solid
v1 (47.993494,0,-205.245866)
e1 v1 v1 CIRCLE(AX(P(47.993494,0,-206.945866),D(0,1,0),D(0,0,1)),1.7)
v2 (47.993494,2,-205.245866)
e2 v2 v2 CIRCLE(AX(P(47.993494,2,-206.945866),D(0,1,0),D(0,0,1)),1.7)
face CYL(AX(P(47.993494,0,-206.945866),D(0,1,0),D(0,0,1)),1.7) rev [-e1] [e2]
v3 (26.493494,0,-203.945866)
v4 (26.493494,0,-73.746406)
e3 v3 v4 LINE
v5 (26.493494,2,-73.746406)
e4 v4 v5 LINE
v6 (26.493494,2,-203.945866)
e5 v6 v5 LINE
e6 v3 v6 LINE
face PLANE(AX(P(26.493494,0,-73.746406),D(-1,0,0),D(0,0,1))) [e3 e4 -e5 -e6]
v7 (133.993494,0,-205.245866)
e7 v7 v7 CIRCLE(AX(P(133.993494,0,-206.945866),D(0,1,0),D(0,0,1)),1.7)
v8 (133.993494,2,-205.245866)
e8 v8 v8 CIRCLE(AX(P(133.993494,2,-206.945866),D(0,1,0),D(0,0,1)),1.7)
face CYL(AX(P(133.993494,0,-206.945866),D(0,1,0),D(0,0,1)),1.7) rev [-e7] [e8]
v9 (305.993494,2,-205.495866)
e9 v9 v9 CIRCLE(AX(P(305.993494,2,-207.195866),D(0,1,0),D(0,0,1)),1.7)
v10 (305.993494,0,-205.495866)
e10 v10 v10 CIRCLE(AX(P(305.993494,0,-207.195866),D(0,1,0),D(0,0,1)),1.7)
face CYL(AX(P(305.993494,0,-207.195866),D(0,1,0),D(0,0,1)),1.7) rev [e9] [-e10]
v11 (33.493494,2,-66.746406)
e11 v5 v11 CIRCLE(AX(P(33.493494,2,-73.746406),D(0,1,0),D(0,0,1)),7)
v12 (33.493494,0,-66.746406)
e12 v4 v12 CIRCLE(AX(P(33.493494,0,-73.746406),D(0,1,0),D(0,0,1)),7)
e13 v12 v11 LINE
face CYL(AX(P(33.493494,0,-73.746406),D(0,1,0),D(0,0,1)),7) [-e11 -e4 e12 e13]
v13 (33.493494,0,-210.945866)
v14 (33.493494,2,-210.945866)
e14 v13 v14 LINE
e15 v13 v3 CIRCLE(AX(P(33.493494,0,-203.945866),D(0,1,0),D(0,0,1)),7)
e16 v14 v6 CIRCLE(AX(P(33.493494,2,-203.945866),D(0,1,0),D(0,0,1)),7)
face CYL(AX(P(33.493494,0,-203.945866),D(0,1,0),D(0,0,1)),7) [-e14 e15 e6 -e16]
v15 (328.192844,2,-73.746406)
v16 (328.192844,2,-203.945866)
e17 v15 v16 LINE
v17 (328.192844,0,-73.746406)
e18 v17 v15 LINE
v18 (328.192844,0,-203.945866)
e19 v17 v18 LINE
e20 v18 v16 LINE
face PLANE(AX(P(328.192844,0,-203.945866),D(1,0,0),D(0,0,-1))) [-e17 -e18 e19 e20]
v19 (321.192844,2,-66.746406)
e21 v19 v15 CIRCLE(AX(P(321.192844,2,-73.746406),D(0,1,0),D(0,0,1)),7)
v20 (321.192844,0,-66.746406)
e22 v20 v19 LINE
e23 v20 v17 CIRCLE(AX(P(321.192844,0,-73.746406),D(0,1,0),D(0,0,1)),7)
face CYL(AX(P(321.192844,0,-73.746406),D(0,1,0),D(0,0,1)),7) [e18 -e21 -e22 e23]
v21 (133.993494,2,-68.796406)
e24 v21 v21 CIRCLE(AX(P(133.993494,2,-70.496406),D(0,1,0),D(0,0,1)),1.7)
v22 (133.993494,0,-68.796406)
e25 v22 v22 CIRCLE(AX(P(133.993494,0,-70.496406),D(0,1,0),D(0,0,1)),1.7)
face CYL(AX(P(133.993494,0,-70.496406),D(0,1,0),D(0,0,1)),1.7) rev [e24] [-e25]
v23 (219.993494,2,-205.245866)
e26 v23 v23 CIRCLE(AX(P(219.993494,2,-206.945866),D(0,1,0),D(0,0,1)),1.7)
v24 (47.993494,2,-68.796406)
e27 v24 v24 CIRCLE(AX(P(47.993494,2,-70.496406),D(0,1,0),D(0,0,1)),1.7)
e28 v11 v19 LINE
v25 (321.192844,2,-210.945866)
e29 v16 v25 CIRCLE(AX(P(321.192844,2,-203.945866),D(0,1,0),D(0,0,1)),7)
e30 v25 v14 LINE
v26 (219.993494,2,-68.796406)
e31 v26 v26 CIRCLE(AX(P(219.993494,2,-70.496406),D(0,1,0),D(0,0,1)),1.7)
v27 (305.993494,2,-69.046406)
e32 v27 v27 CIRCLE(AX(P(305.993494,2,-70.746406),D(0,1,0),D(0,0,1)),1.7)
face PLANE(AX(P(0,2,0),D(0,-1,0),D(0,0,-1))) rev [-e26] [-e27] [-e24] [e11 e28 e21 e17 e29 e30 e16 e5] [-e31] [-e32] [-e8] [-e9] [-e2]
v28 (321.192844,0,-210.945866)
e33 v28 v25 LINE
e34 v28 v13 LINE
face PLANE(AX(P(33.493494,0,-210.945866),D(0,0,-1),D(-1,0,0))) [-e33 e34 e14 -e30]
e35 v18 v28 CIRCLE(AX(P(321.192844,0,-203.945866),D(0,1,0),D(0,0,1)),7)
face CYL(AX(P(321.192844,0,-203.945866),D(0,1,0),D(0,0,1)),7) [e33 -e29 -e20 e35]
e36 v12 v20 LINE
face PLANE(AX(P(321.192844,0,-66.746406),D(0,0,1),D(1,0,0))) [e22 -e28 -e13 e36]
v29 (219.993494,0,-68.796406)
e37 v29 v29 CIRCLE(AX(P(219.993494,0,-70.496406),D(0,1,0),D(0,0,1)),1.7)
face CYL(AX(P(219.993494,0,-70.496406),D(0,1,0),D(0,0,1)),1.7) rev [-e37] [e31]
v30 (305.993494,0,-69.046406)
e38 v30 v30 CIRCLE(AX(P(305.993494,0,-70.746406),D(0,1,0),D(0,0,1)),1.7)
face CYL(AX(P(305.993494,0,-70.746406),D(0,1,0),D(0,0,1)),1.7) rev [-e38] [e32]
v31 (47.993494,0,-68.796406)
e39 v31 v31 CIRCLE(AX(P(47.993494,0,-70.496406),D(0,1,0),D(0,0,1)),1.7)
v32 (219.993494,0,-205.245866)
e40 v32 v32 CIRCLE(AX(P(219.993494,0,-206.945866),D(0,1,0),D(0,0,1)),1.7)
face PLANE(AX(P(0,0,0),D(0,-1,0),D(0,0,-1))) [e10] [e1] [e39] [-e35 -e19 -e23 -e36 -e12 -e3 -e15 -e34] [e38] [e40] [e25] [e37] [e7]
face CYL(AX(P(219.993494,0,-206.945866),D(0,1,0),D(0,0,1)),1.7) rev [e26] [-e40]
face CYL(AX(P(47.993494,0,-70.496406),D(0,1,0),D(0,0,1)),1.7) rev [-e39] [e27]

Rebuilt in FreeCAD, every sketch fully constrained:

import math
import FreeCAD as App
import Part
import Sketcher
Q = App.Units.Quantity

doc = App.newDocument("Part")
params = doc.addObject("Spreadsheet::Sheet", "Params")
for row, (alias, value) in enumerate([
    ("sketch1_width", "350 mm"),
    ("sketch1_height", "250 mm"),
    ("pad1_length", "2 mm"),
    ("sketch2_radius", "7 mm"),
    ("sketch2_diameter", "3.4 mm"),
    ("pocket1_length", "2 mm"),
], start=1):
    params.set(f"A{row}", alias)
    params.set(f"B{row}", "=" + value)
    params.setAlias(f"B{row}", alias)

body = doc.addObject("PartDesign::Body", "Body")

# Sketch on XZ plane
sketch1 = body.newObject("Sketcher::SketchObject", "Sketch")
sketch1.AttachmentSupport = (doc.getObject("XZ_Plane"), [""])
sketch1.MapMode = "FlatFace"
sketch1.addGeometry([
    Part.LineSegment(App.Vector(0, -250, 0), App.Vector(0, 0, 0)),
    Part.LineSegment(App.Vector(0, 0, 0), App.Vector(350, 0, 0)),
    Part.LineSegment(App.Vector(350, 0, 0), App.Vector(350, -250, 0)),
    Part.LineSegment(App.Vector(350, -250, 0), App.Vector(0, -250, 0)),
], False)
sketch1.addConstraint([
    Sketcher.Constraint("Coincident", 0, 2, 1, 1),
    Sketcher.Constraint("Coincident", 1, 2, 2, 1),
    Sketcher.Constraint("Coincident", 2, 2, 3, 1),
    Sketcher.Constraint("Coincident", 3, 2, 0, 1),
    Sketcher.Constraint("Vertical", 0),
    Sketcher.Constraint("Horizontal", 1),
    Sketcher.Constraint("Vertical", 2),
    Sketcher.Constraint("Horizontal", 3),
    Sketcher.Constraint("Coincident", 0, 2, -1, 1),
    Sketcher.Constraint("DistanceX", 1, 1, 1, 2, Q("350 mm")),
    Sketcher.Constraint("DistanceY", 0, 1, 0, 2, Q("250 mm")),
])
sketch1.setExpression("Constraints[9]", "Params.sketch1_width")
sketch1.setExpression("Constraints[10]", "Params.sketch1_height")
pad1 = body.newObject("PartDesign::Pad", "Pad")
pad1.Profile = sketch1
pad1.setExpression("Length", "Params.pad1_length")
pad1.Reversed = True

# Sketch on XZ plane
sketch2 = body.newObject("Sketcher::SketchObject", "Sketch001")
sketch2.AttachmentSupport = (doc.getObject("XZ_Plane"), [""])
sketch2.MapMode = "FlatFace"
sketch2.AttachmentOffset = App.Placement(App.Vector(0, 0, -2), App.Rotation())
sketch2.addGeometry([
    Part.LineSegment(App.Vector(-44, -294, 0), App.Vector(-44, 44, 0)),  # 0
    Part.LineSegment(App.Vector(-44, 44, 0), App.Vector(394, 44, 0)),  # 1
    Part.LineSegment(App.Vector(394, 44, 0), App.Vector(394, -294, 0)),  # 2
    Part.LineSegment(App.Vector(394, -294, 0), App.Vector(-44, -294, 0)),  # 3
    Part.ArcOfCircle(Part.Circle(App.Vector(33.5, -73.7, 0), App.Vector(0, 0, 1), 7), math.radians(90), math.radians(180)),  # 4
    Part.LineSegment(App.Vector(26.5, -73.7, 0), App.Vector(26.5, -203.9, 0)),  # 5
    Part.ArcOfCircle(Part.Circle(App.Vector(33.5, -203.9, 0), App.Vector(0, 0, 1), 7), math.radians(180), math.radians(270)),  # 6
    Part.LineSegment(App.Vector(33.5, -210.9, 0), App.Vector(321.2, -210.9, 0)),  # 7
    Part.ArcOfCircle(Part.Circle(App.Vector(321.2, -203.9, 0), App.Vector(0, 0, 1), 7), math.radians(-90), math.radians(0)),  # 8
    Part.LineSegment(App.Vector(328.2, -203.9, 0), App.Vector(328.2, -73.7, 0)),  # 9
    Part.ArcOfCircle(Part.Circle(App.Vector(321.2, -73.7, 0), App.Vector(0, 0, 1), 7), math.radians(0), math.radians(90)),  # 10
    Part.LineSegment(App.Vector(321.2, -66.7, 0), App.Vector(33.5, -66.7, 0)),  # 11
    Part.Circle(App.Vector(306, -70.7, 0), App.Vector(0, 0, 1), 1.7),  # 12
    Part.Circle(App.Vector(220, -70.5, 0), App.Vector(0, 0, 1), 1.7),  # 13
    Part.Circle(App.Vector(48, -70.5, 0), App.Vector(0, 0, 1), 1.7),  # 14
    Part.Circle(App.Vector(134, -70.5, 0), App.Vector(0, 0, 1), 1.7),  # 15
    Part.Circle(App.Vector(306, -207.2, 0), App.Vector(0, 0, 1), 1.7),  # 16
    Part.Circle(App.Vector(220, -206.9, 0), App.Vector(0, 0, 1), 1.7),  # 17
    Part.Circle(App.Vector(48, -206.9, 0), App.Vector(0, 0, 1), 1.7),  # 18
    Part.Circle(App.Vector(134, -206.9, 0), App.Vector(0, 0, 1), 1.7),  # 19
], False)
sketch2.addConstraint([
    Sketcher.Constraint("Coincident", 0, 2, 1, 1),
    Sketcher.Constraint("Coincident", 1, 2, 2, 1),
    Sketcher.Constraint("Coincident", 2, 2, 3, 1),
    Sketcher.Constraint("Coincident", 3, 2, 0, 1),
    Sketcher.Constraint("Tangent", 4, 2, 5, 1),
    Sketcher.Constraint("Tangent", 5, 2, 6, 1),
    Sketcher.Constraint("Tangent", 6, 2, 7, 1),
    Sketcher.Constraint("Tangent", 7, 2, 8, 1),
    Sketcher.Constraint("Tangent", 8, 2, 9, 1),
    Sketcher.Constraint("Tangent", 9, 2, 10, 1),
    Sketcher.Constraint("Tangent", 10, 2, 11, 1),
    Sketcher.Constraint("Tangent", 11, 2, 4, 1),
    Sketcher.Constraint("Vertical", 0),
    Sketcher.Constraint("Horizontal", 1),
    Sketcher.Constraint("Vertical", 2),
    Sketcher.Constraint("Horizontal", 3),
    Sketcher.Constraint("Vertical", 5),
    Sketcher.Constraint("Horizontal", 7),
    Sketcher.Constraint("Vertical", 9),
    Sketcher.Constraint("Horizontal", 11),
    Sketcher.Constraint("Equal", 4, 6),
    Sketcher.Constraint("Equal", 6, 8),
    Sketcher.Constraint("Equal", 8, 10),
    Sketcher.Constraint("Equal", 12, 13),
    Sketcher.Constraint("Equal", 13, 14),
    Sketcher.Constraint("Equal", 14, 15),
    Sketcher.Constraint("Equal", 15, 16),
    Sketcher.Constraint("Equal", 16, 17),
    Sketcher.Constraint("Equal", 17, 18),
    Sketcher.Constraint("Equal", 18, 19),
    Sketcher.Constraint("Horizontal", 13, 3, 14, 3),
    Sketcher.Constraint("Horizontal", 14, 3, 15, 3),
    Sketcher.Constraint("Horizontal", 17, 3, 18, 3),
    Sketcher.Constraint("Horizontal", 18, 3, 19, 3),
    Sketcher.Constraint("Vertical", 12, 3, 16, 3),
    Sketcher.Constraint("Vertical", 13, 3, 17, 3),
    Sketcher.Constraint("Vertical", 14, 3, 18, 3),
    Sketcher.Constraint("Vertical", 15, 3, 19, 3),
    Sketcher.Constraint("Radius", 4, Q("7 mm")),
    Sketcher.Constraint("Diameter", 12, Q("3.4 mm")),
    Sketcher.Constraint("DistanceY", 10, 3, 12, 3, Q("3 mm")),
    Sketcher.Constraint("DistanceX", 13, 3, 12, 3, Q("86 mm")),
    Sketcher.Constraint("DistanceX", 14, 3, 13, 3, Q("172 mm")),
    Sketcher.Constraint("DistanceX", 15, 3, 13, 3, Q("86 mm")),
    Sketcher.Constraint("DistanceY", 17, 3, 8, 3, Q("3 mm")),
    Sketcher.Constraint("DistanceX", 4, 3, 12, 3, Q("272.5 mm")),
    Sketcher.Constraint("DistanceX", 1, 1, 1, 2, Q("438.024 mm")),
    Sketcher.Constraint("DistanceY", 0, 1, 0, 2, Q("338.024 mm")),
    Sketcher.Constraint("DistanceY", 12, 3, 13, 3, Q("0.25 mm")),
    Sketcher.Constraint("DistanceY", 16, 3, 8, 3, Q("3.25 mm")),
    Sketcher.Constraint("DistanceX", 0, 2, -1, 1, Q("44.012 mm")),
    Sketcher.Constraint("DistanceY", -1, 1, 0, 2, Q("44.012 mm")),
    Sketcher.Constraint("DistanceX", 7, 1, 7, 2, Q("287.69935 mm")),
    Sketcher.Constraint("DistanceY", 5, 2, 5, 1, Q("130.19946 mm")),
    Sketcher.Constraint("DistanceX", -1, 1, 4, 3, Q("33.493494 mm")),
    Sketcher.Constraint("DistanceY", 4, 3, -1, 1, Q("73.746406 mm")),
])
sketch2.setExpression("Constraints[38]", "Params.sketch2_radius")
sketch2.setExpression("Constraints[39]", "Params.sketch2_diameter")
pocket1 = body.newObject("PartDesign::Pocket", "Pocket")
pocket1.Profile = sketch2
pocket1.setExpression("Length", "Params.pocket1_length")
pocket1.Reversed = True

doc.recompute()
